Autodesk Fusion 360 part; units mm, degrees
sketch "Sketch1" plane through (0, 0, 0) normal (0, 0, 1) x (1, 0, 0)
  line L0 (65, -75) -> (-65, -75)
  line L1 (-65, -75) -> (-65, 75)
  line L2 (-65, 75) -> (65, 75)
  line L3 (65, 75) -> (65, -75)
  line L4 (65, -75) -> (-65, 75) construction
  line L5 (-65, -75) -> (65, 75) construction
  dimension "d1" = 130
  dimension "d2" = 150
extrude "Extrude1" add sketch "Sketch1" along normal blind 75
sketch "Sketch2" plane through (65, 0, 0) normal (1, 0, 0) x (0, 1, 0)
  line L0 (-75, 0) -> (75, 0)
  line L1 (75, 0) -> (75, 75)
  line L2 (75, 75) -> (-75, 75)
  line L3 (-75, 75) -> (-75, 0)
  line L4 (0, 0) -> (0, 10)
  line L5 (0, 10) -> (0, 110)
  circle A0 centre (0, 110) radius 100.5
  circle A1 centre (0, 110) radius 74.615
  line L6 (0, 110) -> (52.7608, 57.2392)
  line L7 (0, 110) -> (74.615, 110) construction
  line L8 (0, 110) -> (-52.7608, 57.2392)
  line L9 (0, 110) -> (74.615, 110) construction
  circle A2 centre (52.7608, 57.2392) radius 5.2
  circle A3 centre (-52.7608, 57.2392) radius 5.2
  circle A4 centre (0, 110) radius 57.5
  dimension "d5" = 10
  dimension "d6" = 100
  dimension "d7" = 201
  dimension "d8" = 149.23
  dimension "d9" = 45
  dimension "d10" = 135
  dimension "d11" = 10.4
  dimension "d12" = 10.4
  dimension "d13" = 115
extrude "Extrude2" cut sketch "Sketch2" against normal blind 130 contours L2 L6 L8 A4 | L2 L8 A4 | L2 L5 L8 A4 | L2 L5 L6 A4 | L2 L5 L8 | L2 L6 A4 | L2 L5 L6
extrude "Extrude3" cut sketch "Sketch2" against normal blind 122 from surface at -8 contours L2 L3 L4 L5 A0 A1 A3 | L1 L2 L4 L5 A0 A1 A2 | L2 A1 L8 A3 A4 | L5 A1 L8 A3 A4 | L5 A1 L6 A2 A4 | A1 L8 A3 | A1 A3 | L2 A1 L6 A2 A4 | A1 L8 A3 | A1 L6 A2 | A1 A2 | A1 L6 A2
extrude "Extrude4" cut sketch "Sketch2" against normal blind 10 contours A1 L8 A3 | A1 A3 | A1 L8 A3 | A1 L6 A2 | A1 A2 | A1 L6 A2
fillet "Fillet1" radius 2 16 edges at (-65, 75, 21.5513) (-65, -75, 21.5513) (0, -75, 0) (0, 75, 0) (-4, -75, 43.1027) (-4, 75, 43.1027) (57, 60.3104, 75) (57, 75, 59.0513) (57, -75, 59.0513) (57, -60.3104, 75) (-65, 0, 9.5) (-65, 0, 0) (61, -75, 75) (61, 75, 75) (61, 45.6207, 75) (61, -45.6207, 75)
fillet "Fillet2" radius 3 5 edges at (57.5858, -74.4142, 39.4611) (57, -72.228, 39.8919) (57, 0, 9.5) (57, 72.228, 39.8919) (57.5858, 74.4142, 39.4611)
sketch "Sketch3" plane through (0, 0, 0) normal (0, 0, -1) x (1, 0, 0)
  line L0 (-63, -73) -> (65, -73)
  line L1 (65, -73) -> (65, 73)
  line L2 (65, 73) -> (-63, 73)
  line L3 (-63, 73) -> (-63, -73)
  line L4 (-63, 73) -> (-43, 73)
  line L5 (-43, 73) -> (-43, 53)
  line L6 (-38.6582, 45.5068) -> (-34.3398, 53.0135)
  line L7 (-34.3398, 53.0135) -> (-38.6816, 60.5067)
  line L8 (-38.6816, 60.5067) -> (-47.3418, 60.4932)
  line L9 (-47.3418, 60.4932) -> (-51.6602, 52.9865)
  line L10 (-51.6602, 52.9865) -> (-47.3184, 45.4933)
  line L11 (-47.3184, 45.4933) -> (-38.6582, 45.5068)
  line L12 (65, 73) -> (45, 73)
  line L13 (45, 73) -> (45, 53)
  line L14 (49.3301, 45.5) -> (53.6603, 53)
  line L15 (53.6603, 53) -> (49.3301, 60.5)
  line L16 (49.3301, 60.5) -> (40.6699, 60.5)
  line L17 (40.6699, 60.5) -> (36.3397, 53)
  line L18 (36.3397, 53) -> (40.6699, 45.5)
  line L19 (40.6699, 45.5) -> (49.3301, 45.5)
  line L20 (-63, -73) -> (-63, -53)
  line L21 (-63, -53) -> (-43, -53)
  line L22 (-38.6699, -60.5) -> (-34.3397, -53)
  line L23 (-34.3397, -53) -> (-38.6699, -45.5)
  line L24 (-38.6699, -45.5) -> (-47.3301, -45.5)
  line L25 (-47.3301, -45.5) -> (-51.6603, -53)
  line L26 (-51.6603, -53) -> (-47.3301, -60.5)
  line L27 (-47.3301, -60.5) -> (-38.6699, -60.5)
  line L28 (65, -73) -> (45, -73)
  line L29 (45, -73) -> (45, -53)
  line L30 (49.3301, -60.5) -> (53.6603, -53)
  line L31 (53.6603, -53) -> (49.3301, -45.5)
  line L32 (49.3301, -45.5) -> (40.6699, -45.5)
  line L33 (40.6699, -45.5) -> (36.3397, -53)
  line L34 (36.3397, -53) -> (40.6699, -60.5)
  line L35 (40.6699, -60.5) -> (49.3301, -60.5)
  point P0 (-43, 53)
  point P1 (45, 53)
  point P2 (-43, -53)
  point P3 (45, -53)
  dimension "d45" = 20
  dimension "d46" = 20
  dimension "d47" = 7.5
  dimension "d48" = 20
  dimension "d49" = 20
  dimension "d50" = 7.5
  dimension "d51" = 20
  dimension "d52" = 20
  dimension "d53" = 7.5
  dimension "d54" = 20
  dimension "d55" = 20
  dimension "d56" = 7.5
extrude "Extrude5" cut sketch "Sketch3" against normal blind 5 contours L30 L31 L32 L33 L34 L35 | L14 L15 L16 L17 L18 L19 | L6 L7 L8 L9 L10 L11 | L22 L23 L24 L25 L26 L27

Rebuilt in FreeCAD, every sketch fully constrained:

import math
import FreeCAD as App
import Part
import Sketcher

V = App.Vector
Q = App.Units.Quantity


def edges_at(feature, points):
    """Names of the edges that pass closest to the given points."""
    edges = feature.Shape.Edges
    near = lambda p: min(range(len(edges)), key=lambda i: edges[i].distToShape(Part.Vertex(*p))[0])
    return sorted({f"Edge{near(p) + 1}" for p in points})


def add_polygon(sketch, points):
    """Adds a closed chain of lines whose ends are joined by coincident constraints."""
    first, n = sketch.GeometryCount, len(points)
    for a, b in zip(points, points[1:] + points[:1]):
        sketch.addGeometry(Part.LineSegment(App.Vector(*a, 0), App.Vector(*b, 0)), False)
    for i in range(n):
        sketch.addConstraint(Sketcher.Constraint("Coincident", first + i, 2, first + (i + 1) % n, 1))

doc = App.newDocument("Part")
body = doc.addObject("PartDesign::Body", "Body")

# Sketch on XY plane
sketch1 = body.newObject("Sketcher::SketchObject", "Sketch")
sketch1.AttachmentSupport = (doc.getObject("XY_Plane"), [""])
sketch1.MapMode = "FlatFace"
add_polygon(sketch1, [(-65, -75), (65, -75), (65, 75), (-65, 75)])  # lines 0-3
sketch1.addConstraint([
    Sketcher.Constraint("Horizontal", 0),
    Sketcher.Constraint("Vertical", 1),
    Sketcher.Constraint("Horizontal", 2),
    Sketcher.Constraint("Vertical", 3),
    Sketcher.Constraint("Symmetric", 0, 2, 2, 2, -1, 1),
    Sketcher.Constraint("DistanceX", 0, 1, 0, 2, 130.0),
    Sketcher.Constraint("DistanceY", 1, 1, 1, 2, 150.0),
])
pad1 = body.newObject("PartDesign::Pad", "Pad")
pad1.Profile = sketch1
pad1.Length = 75

# Sketch on YZ plane
sketch2 = body.newObject("Sketcher::SketchObject", "Sketch001")
sketch2.AttachmentSupport = (doc.getObject("YZ_Plane"), [""])
sketch2.MapMode = "FlatFace"
sketch2.AttachmentOffset = App.Placement(V(0, 0, 65), App.Rotation())
sketch2.addGeometry(Part.Circle(V(0, 110, 0), V(0, 0, 1), 58), False)
sketch2.addConstraint([
    Sketcher.Constraint("PointOnObject", 0, 3, -2),
    Sketcher.Constraint("Diameter", 0, 115.0),
    Sketcher.Constraint("DistanceY", -1, 1, 0, 3, 110.0),
])
pocket1 = body.newObject("PartDesign::Pocket", "Pocket")
pocket1.Profile = sketch2
pocket1.Length = 130

# Sketch on YZ plane
sketch3 = body.newObject("Sketcher::SketchObject", "Sketch002")
sketch3.AttachmentSupport = (doc.getObject("YZ_Plane"), [""])
sketch3.MapMode = "FlatFace"
sketch3.AttachmentOffset = App.Placement(V(0, 0, 57), App.Rotation())
sketch3.addGeometry([
    Part.LineSegment(V(-75, 75, 0), V(-75, 43, 0)),  # 0
    Part.ArcOfCircle(Part.Circle(V(0, 110, 0), V(0, 0, 1), 100), math.radians(-138), math.radians(-42)),  # 1
    Part.LineSegment(V(75, 43, 0), V(75, 75, 0)),  # 2
    Part.LineSegment(V(75, 75, 0), V(46, 75, 0)),  # 3
    Part.ArcOfCircle(Part.Circle(V(0, 110, 0), V(0, 0, 1), 58), math.radians(-143), math.radians(-37)),  # 4
    Part.LineSegment(V(-46, 75, 0), V(-75, 75, 0)),  # 5
], False)
sketch3.addConstraint([
    Sketcher.Constraint("Coincident", 0, 2, 1, 1),
    Sketcher.Constraint("Coincident", 1, 2, 2, 1),
    Sketcher.Constraint("Coincident", 2, 2, 3, 1),
    Sketcher.Constraint("Coincident", 3, 2, 4, 2),
    Sketcher.Constraint("Coincident", 4, 1, 5, 1),
    Sketcher.Constraint("Coincident", 5, 2, 0, 1),
    Sketcher.Constraint("Vertical", 0),
    Sketcher.Constraint("Vertical", 2),
    Sketcher.Constraint("Horizontal", 3),
    Sketcher.Constraint("Horizontal", 5),
    Sketcher.Constraint("Coincident", 4, 3, 1, 3),
    Sketcher.Constraint("Symmetric", 0, 2, 1, 2, -2),
    Sketcher.Constraint("Horizontal", 3, 2, 4, 1),
    Sketcher.Constraint("Radius", 1, 100.5),
    Sketcher.Constraint("Radius", 4, 57.5),
    Sketcher.Constraint("DistanceY", -1, 1, 1, 3, 110.0),
    Sketcher.Constraint("DistanceX", 0, 2, -1, 1, 75.0),
    Sketcher.Constraint("DistanceY", -1, 1, 2, 2, 75.0),
])
pocket2 = body.newObject("PartDesign::Pocket", "Pocket001")
pocket2.Profile = sketch3
pocket2.Length = 122

# Sketch on YZ plane
sketch4 = body.newObject("Sketcher::SketchObject", "Sketch003")
sketch4.AttachmentSupport = (doc.getObject("YZ_Plane"), [""])
sketch4.MapMode = "FlatFace"
sketch4.AttachmentOffset = App.Placement(V(0, 0, 65), App.Rotation())
sketch4.addGeometry([
    Part.Circle(V(-53, 57, 0), V(0, 0, 1), 5),
    Part.Circle(V(53, 57, 0), V(0, 0, 1), 5),
], False)
sketch4.addConstraint([
    Sketcher.Constraint("Equal", 0, 1),
    Sketcher.Constraint("Symmetric", 0, 3, 1, 3, -2),
    Sketcher.Constraint("Diameter", 0, 10.4),
    Sketcher.Constraint("DistanceX", 0, 3, -1, 1, 52.7608),
    Sketcher.Constraint("DistanceY", -1, 1, 0, 3, 57.2392),
])
pocket3 = body.newObject("PartDesign::Pocket", "Pocket002")
pocket3.Profile = sketch4
pocket3.Length = 10
doc.recompute()

fillet = body.newObject("PartDesign::Fillet", "Fillet")
fillet.Base = (pocket3, edges_at(pocket3, [
    (-65, 75, 21.551),
    (-65, -75, 21.551),
    (0, -75, 0),
    (0, 75, 0),
    (-4, -75, 43.103),
    (-4, 75, 43.103),
    (57, 60.31, 75),
    (57, 75, 59.051),
    (57, -75, 59.051),
    (57, -60.31, 75),
    (-65, 0, 9.5),
    (-65, 0, 0),
    (61, -75, 75),
    (61, 75, 75),
    (61, 45.621, 75),
    (61, -45.621, 75),
]))
fillet.Radius = 2
doc.recompute()

fillet2 = body.newObject("PartDesign::Fillet", "Fillet001")
fillet2.Base = (fillet, edges_at(fillet, [
    (57.586, -74.414, 39.461),
    (57, -72.228, 39.892),
    (57, 0, 9.5),
    (57, 72.228, 39.892),
    (57.586, 74.414, 39.461),
]))
fillet2.Radius = 3

# Sketch on XY plane
sketch5 = body.newObject("Sketcher::SketchObject", "Sketch004")
sketch5.AttachmentSupport = (doc.getObject("XY_Plane"), [""])
sketch5.MapMode = "FlatFace"
add_polygon(sketch5, [(41, 60), (49, 60), (54, 53), (49, 46), (41, 46), (36, 53)])  # lines 0-5
add_polygon(sketch5, [(49, -60), (41, -60), (36, -53), (41, -46), (49, -46), (54, -53)])  # lines 6-11
add_polygon(sketch5, [(-39, -61), (-47, -60), (-52, -53), (-47, -45), (-39, -46), (-34, -53)])  # lines 12-17
add_polygon(sketch5, [(-47, 46), (-52, 53), (-47, 60), (-39, 60), (-34, 53), (-39, 46)])  # lines 18-23
sketch5.addConstraint([
    Sketcher.Constraint("Horizontal", 0),
    Sketcher.Constraint("Horizontal", 3),
    Sketcher.Constraint("Horizontal", 6),
    Sketcher.Constraint("Horizontal", 9),
    Sketcher.Constraint("Horizontal", 20),
    Sketcher.Constraint("Horizontal", 23),
    Sketcher.Constraint("Symmetric", 5, 2, 6, 2, -1),
    Sketcher.Constraint("Symmetric", 4, 2, 7, 2, -1),
    Sketcher.Constraint("Symmetric", 3, 2, 8, 2, -1),
    Sketcher.Constraint("Symmetric", 1, 2, 10, 2, -1),
    Sketcher.Constraint("Parallel", 1, 4),
    Sketcher.Constraint("Parallel", 2, 5),
    Sketcher.Constraint("Parallel", 4, 7),
    Sketcher.Constraint("Parallel", 7, 10),
    Sketcher.Constraint("Parallel", 8, 11),
    Sketcher.Constraint("Parallel", 12, 15),
    Sketcher.Constraint("Parallel", 13, 16),
    Sketcher.Constraint("Parallel", 14, 17),
    Sketcher.Constraint("Parallel", 10, 18),
    Sketcher.Constraint("Parallel", 11, 19),
    Sketcher.Constraint("Parallel", 18, 21),
    Sketcher.Constraint("Parallel", 19, 22),
    Sketcher.Constraint("Horizontal", 1, 2, 4, 2),
    Sketcher.Constraint("Horizontal", 4, 2, 18, 2),
    Sketcher.Constraint("Horizontal", 5, 2, 19, 2),
    Sketcher.Constraint("Horizontal", 18, 2, 21, 2),
    Sketcher.Constraint("Horizontal", 3, 2, 22, 2),
    Sketcher.Constraint("Vertical", 0, 2, 2, 2),
    Sketcher.Constraint("Vertical", 13, 2, 18, 2),
    Sketcher.Constraint("Vertical", 16, 2, 21, 2),
    Sketcher.Constraint("Equal", 9, 20),
    Sketcher.Constraint("Equal", 11, 12),
    Sketcher.Constraint("Equal", 12, 13),
    Sketcher.Constraint("Equal", 13, 14),
    Sketcher.Constraint("Equal", 14, 15),
    Sketcher.Constraint("DistanceY", 1, 2, 0, 2, 7.5),
    Sketcher.Constraint("Angle", 1, Q("-59.9996 deg")),
    Sketcher.Constraint("DistanceY", -1, 1, 1, 2, 53.0),
    Sketcher.Constraint("DistanceX", 13, 2, 7, 2, 88.0),
    Sketcher.Constraint("DistanceY", 12, 2, 14, 2, 15.0),
    Sketcher.Constraint("Angle", 12, Q("179.9107 deg")),
    Sketcher.Constraint("Angle", 13, Q("119.9106 deg")),
    Sketcher.Constraint("DistanceX", -1, 1, 0, 2, 49.33),
    Sketcher.Constraint("DistanceY", 12, 2, -1, 1, 60.4932),
])
pocket4 = body.newObject("PartDesign::Pocket", "Pocket003")
pocket4.Profile = sketch5
pocket4.Length = 5
pocket4.Reversed = True

doc.recompute()
